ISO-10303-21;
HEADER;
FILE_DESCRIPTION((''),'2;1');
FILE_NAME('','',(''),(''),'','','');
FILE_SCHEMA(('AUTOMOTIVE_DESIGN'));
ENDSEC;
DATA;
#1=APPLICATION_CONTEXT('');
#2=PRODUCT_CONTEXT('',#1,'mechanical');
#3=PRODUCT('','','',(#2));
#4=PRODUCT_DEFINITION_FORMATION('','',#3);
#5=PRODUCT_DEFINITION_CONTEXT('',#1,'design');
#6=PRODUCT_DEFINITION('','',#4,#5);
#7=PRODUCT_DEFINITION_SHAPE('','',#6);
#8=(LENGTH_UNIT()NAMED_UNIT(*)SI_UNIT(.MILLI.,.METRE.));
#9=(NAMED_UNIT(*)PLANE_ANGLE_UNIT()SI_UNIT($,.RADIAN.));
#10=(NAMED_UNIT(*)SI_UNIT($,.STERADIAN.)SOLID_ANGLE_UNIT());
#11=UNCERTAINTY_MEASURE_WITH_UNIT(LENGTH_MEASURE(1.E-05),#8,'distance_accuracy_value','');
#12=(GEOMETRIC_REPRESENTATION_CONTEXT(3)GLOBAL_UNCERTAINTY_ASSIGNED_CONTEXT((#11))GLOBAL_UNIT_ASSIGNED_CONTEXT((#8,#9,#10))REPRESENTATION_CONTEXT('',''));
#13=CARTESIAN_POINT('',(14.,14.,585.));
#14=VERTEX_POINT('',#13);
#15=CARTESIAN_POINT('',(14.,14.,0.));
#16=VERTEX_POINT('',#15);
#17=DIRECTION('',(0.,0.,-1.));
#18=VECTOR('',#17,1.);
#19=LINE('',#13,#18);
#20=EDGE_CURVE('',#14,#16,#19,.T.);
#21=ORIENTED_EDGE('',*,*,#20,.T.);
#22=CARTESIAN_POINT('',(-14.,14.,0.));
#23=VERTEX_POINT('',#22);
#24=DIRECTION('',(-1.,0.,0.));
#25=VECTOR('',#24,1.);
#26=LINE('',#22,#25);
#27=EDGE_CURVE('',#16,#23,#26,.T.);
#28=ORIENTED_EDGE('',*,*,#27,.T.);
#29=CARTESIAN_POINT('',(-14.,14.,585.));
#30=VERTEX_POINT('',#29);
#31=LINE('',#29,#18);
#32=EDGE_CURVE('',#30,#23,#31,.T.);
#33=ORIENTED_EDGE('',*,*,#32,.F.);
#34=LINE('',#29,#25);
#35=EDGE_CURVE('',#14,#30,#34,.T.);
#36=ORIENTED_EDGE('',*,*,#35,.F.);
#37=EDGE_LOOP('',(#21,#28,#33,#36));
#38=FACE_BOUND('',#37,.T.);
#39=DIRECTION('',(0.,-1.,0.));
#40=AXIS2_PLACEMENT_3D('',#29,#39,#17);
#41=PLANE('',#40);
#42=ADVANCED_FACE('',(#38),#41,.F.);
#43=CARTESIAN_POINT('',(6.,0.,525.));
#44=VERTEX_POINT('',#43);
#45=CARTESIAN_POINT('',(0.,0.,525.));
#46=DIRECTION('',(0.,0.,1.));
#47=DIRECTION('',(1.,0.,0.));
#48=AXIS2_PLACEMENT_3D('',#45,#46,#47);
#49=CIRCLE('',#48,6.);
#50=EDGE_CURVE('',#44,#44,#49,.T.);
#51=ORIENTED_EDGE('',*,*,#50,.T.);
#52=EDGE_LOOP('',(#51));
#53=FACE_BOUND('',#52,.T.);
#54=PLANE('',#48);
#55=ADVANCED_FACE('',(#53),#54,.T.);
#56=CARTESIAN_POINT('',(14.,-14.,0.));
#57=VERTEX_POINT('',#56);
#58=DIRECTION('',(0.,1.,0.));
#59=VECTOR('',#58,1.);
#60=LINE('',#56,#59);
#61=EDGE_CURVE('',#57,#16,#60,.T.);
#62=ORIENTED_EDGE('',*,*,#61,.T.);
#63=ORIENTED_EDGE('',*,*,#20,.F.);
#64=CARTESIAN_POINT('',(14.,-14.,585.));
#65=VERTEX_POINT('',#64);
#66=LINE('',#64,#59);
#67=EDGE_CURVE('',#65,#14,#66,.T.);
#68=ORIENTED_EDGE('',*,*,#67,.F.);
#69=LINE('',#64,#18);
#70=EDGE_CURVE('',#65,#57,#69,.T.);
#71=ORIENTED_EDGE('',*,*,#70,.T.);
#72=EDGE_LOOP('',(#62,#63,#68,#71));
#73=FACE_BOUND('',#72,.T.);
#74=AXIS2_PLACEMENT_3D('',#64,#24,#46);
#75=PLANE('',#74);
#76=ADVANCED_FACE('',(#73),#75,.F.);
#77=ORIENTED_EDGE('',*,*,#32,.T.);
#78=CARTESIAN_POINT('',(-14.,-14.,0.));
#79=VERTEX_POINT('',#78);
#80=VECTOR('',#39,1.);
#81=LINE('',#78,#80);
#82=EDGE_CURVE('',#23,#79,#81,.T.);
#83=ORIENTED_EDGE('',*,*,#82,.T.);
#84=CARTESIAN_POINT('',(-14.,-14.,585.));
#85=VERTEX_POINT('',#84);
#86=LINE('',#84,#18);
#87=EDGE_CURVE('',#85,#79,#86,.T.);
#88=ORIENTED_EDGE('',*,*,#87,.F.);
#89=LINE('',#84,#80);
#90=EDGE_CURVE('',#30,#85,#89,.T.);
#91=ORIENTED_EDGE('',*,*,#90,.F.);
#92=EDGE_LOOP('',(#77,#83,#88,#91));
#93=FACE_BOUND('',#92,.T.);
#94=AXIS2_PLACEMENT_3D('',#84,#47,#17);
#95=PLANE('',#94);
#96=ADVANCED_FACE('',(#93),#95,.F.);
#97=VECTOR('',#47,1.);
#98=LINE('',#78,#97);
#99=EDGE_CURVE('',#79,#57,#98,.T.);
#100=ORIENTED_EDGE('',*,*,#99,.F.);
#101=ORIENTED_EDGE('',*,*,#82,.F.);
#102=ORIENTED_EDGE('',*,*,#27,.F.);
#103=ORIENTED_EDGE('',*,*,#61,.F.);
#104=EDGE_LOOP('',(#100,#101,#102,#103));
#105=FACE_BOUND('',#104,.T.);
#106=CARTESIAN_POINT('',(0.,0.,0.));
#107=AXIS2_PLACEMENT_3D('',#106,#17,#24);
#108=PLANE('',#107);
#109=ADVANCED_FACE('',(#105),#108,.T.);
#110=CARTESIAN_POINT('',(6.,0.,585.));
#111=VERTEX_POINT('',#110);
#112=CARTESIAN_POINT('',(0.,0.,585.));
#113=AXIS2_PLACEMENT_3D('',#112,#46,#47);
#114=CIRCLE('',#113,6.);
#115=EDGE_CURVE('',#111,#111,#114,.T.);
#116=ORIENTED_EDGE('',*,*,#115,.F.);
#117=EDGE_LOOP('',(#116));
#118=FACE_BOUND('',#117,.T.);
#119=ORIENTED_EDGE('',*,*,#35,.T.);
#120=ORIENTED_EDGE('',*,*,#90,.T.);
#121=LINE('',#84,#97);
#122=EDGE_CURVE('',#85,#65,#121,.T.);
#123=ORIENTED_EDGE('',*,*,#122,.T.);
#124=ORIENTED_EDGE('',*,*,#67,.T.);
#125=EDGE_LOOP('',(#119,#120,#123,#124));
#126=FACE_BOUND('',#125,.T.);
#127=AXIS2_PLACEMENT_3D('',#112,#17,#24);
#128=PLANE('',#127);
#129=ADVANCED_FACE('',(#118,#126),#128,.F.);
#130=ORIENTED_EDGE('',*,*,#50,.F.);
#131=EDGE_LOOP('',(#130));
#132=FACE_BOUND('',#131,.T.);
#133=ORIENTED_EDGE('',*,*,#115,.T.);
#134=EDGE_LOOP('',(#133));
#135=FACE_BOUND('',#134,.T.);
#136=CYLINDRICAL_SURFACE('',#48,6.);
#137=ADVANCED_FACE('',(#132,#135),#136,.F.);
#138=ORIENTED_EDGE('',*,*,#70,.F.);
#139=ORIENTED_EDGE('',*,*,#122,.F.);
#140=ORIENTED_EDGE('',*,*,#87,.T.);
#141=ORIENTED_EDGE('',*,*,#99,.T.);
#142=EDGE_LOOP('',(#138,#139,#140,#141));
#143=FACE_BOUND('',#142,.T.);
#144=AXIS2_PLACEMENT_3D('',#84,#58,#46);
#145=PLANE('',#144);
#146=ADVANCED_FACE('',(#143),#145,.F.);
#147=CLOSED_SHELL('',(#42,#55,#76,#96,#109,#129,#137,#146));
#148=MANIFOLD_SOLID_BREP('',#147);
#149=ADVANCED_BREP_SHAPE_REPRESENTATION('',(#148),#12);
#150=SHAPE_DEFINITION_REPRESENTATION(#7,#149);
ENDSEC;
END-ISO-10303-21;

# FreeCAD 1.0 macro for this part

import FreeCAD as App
import Part
import Sketcher

doc = App.newDocument("Part")
params = doc.addObject("Spreadsheet::Sheet", "Params")
for row, (alias, value) in enumerate([
    ("sketch1_width", "28 mm"),
    ("pad1_length", "585 mm"),
    ("sketch2_diameter", "12 mm"),
    ("pocket1_length", "60 mm"),
], start=1):
    params.set(f"A{row}", alias)
    params.set(f"B{row}", "=" + value)
    params.setAlias(f"B{row}", alias)

body = doc.addObject("PartDesign::Body", "Body")

# Sketch on XY plane
sketch1 = body.newObject("Sketcher::SketchObject", "Sketch")
sketch1.AttachmentSupport = (doc.getObject("XY_Plane"), [""])
sketch1.MapMode = "FlatFace"
sketch1.addGeometry([
    Part.LineSegment(App.Vector(-14, 14, 0), App.Vector(-14, -14, 0)),
    Part.LineSegment(App.Vector(-14, -14, 0), App.Vector(14, -14, 0)),
    Part.LineSegment(App.Vector(14, -14, 0), App.Vector(14, 14, 0)),
    Part.LineSegment(App.Vector(14, 14, 0), App.Vector(-14, 14, 0)),
], False)
sketch1.addConstraint([
    Sketcher.Constraint("Coincident", 0, 2, 1, 1),
    Sketcher.Constraint("Coincident", 1, 2, 2, 1),
    Sketcher.Constraint("Coincident", 2, 2, 3, 1),
    Sketcher.Constraint("Coincident", 3, 2, 0, 1),
    Sketcher.Constraint("Vertical", 0),
    Sketcher.Constraint("Horizontal", 1),
    Sketcher.Constraint("Vertical", 2),
    Sketcher.Constraint("Horizontal", 3),
    Sketcher.Constraint("Symmetric", 0, 2, 2, 2, -1, 1),
    Sketcher.Constraint("Equal", 3, 0),
    Sketcher.Constraint("DistanceX", 1, 1, 1, 2, 28.0),
])
sketch1.setExpression("Constraints[10]", "Params.sketch1_width")
pad1 = body.newObject("PartDesign::Pad", "Pad")
pad1.Profile = sketch1
pad1.setExpression("Length", "Params.pad1_length")

# Sketch on XY plane
sketch2 = body.newObject("Sketcher::SketchObject", "Sketch001")
sketch2.AttachmentSupport = (doc.getObject("XY_Plane"), [""])
sketch2.MapMode = "FlatFace"
sketch2.AttachmentOffset = App.Placement(App.Vector(0, 0, 585), App.Rotation())
sketch2.addGeometry(Part.Circle(App.Vector(0, 0, 0), App.Vector(0, 0, 1), 6), False)
sketch2.addConstraint([
    Sketcher.Constraint("Coincident", 0, 3, -1, 1),
    Sketcher.Constraint("Diameter", 0, 12.0),
])
sketch2.setExpression("Constraints[1]", "Params.sketch2_diameter")
pocket1 = body.newObject("PartDesign::Pocket", "Pocket")
pocket1.Profile = sketch2
pocket1.setExpression("Length", "Params.pocket1_length")

doc.recompute()
